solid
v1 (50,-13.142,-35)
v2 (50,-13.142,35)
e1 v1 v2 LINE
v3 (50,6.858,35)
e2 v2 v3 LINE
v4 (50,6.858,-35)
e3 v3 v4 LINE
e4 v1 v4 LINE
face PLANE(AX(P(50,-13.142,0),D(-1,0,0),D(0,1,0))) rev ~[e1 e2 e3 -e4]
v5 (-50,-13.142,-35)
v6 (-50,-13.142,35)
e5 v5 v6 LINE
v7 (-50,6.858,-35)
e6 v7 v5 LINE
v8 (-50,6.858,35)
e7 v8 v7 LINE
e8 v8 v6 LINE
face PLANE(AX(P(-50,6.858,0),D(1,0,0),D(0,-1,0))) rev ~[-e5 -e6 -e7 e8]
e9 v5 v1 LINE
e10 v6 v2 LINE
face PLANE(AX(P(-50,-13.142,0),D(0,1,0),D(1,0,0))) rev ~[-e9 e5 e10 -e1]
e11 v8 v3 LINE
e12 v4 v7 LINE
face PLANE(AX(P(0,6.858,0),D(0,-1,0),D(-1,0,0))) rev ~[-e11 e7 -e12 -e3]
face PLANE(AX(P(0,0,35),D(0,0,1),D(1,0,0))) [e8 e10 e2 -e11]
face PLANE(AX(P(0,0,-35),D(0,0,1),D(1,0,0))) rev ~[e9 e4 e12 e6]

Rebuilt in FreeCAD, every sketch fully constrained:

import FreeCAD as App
import Part
import Sketcher
Q = App.Units.Quantity

doc = App.newDocument("Part")
body = doc.addObject("PartDesign::Body", "Body")

# Sketch on XY plane
sketch1 = body.newObject("Sketcher::SketchObject", "Sketch")
sketch1.AttachmentSupport = (doc.getObject("XY_Plane"), [""])
sketch1.MapMode = "FlatFace"
sketch1.addGeometry([
    Part.LineSegment(App.Vector(-50, 7, 0), App.Vector(-50, -13, 0)),
    Part.LineSegment(App.Vector(-50, -13, 0), App.Vector(50, -13, 0)),
    Part.LineSegment(App.Vector(50, -13, 0), App.Vector(50, 7, 0)),
    Part.LineSegment(App.Vector(50, 7, 0), App.Vector(-50, 7, 0)),
], False)
sketch1.addConstraint([
    Sketcher.Constraint("Coincident", 0, 2, 1, 1),
    Sketcher.Constraint("Coincident", 1, 2, 2, 1),
    Sketcher.Constraint("Coincident", 2, 2, 3, 1),
    Sketcher.Constraint("Coincident", 3, 2, 0, 1),
    Sketcher.Constraint("Vertical", 0),
    Sketcher.Constraint("Horizontal", 1),
    Sketcher.Constraint("Vertical", 2),
    Sketcher.Constraint("Horizontal", 3),
    Sketcher.Constraint("DistanceY", 0, 2, 0, 1, Q("20 mm")),
    Sketcher.Constraint("DistanceX", 0, 2, -1, 1, Q("50 mm")),
    Sketcher.Constraint("DistanceX", -1, 1, 1, 2, Q("50 mm")),
    Sketcher.Constraint("DistanceY", 0, 2, -1, 1, Q("13.142 mm")),
])
pad1 = body.newObject("PartDesign::Pad", "Pad")
pad1.Profile = sketch1
pad1.Length = 70
pad1.Midplane = True

doc.recompute()
